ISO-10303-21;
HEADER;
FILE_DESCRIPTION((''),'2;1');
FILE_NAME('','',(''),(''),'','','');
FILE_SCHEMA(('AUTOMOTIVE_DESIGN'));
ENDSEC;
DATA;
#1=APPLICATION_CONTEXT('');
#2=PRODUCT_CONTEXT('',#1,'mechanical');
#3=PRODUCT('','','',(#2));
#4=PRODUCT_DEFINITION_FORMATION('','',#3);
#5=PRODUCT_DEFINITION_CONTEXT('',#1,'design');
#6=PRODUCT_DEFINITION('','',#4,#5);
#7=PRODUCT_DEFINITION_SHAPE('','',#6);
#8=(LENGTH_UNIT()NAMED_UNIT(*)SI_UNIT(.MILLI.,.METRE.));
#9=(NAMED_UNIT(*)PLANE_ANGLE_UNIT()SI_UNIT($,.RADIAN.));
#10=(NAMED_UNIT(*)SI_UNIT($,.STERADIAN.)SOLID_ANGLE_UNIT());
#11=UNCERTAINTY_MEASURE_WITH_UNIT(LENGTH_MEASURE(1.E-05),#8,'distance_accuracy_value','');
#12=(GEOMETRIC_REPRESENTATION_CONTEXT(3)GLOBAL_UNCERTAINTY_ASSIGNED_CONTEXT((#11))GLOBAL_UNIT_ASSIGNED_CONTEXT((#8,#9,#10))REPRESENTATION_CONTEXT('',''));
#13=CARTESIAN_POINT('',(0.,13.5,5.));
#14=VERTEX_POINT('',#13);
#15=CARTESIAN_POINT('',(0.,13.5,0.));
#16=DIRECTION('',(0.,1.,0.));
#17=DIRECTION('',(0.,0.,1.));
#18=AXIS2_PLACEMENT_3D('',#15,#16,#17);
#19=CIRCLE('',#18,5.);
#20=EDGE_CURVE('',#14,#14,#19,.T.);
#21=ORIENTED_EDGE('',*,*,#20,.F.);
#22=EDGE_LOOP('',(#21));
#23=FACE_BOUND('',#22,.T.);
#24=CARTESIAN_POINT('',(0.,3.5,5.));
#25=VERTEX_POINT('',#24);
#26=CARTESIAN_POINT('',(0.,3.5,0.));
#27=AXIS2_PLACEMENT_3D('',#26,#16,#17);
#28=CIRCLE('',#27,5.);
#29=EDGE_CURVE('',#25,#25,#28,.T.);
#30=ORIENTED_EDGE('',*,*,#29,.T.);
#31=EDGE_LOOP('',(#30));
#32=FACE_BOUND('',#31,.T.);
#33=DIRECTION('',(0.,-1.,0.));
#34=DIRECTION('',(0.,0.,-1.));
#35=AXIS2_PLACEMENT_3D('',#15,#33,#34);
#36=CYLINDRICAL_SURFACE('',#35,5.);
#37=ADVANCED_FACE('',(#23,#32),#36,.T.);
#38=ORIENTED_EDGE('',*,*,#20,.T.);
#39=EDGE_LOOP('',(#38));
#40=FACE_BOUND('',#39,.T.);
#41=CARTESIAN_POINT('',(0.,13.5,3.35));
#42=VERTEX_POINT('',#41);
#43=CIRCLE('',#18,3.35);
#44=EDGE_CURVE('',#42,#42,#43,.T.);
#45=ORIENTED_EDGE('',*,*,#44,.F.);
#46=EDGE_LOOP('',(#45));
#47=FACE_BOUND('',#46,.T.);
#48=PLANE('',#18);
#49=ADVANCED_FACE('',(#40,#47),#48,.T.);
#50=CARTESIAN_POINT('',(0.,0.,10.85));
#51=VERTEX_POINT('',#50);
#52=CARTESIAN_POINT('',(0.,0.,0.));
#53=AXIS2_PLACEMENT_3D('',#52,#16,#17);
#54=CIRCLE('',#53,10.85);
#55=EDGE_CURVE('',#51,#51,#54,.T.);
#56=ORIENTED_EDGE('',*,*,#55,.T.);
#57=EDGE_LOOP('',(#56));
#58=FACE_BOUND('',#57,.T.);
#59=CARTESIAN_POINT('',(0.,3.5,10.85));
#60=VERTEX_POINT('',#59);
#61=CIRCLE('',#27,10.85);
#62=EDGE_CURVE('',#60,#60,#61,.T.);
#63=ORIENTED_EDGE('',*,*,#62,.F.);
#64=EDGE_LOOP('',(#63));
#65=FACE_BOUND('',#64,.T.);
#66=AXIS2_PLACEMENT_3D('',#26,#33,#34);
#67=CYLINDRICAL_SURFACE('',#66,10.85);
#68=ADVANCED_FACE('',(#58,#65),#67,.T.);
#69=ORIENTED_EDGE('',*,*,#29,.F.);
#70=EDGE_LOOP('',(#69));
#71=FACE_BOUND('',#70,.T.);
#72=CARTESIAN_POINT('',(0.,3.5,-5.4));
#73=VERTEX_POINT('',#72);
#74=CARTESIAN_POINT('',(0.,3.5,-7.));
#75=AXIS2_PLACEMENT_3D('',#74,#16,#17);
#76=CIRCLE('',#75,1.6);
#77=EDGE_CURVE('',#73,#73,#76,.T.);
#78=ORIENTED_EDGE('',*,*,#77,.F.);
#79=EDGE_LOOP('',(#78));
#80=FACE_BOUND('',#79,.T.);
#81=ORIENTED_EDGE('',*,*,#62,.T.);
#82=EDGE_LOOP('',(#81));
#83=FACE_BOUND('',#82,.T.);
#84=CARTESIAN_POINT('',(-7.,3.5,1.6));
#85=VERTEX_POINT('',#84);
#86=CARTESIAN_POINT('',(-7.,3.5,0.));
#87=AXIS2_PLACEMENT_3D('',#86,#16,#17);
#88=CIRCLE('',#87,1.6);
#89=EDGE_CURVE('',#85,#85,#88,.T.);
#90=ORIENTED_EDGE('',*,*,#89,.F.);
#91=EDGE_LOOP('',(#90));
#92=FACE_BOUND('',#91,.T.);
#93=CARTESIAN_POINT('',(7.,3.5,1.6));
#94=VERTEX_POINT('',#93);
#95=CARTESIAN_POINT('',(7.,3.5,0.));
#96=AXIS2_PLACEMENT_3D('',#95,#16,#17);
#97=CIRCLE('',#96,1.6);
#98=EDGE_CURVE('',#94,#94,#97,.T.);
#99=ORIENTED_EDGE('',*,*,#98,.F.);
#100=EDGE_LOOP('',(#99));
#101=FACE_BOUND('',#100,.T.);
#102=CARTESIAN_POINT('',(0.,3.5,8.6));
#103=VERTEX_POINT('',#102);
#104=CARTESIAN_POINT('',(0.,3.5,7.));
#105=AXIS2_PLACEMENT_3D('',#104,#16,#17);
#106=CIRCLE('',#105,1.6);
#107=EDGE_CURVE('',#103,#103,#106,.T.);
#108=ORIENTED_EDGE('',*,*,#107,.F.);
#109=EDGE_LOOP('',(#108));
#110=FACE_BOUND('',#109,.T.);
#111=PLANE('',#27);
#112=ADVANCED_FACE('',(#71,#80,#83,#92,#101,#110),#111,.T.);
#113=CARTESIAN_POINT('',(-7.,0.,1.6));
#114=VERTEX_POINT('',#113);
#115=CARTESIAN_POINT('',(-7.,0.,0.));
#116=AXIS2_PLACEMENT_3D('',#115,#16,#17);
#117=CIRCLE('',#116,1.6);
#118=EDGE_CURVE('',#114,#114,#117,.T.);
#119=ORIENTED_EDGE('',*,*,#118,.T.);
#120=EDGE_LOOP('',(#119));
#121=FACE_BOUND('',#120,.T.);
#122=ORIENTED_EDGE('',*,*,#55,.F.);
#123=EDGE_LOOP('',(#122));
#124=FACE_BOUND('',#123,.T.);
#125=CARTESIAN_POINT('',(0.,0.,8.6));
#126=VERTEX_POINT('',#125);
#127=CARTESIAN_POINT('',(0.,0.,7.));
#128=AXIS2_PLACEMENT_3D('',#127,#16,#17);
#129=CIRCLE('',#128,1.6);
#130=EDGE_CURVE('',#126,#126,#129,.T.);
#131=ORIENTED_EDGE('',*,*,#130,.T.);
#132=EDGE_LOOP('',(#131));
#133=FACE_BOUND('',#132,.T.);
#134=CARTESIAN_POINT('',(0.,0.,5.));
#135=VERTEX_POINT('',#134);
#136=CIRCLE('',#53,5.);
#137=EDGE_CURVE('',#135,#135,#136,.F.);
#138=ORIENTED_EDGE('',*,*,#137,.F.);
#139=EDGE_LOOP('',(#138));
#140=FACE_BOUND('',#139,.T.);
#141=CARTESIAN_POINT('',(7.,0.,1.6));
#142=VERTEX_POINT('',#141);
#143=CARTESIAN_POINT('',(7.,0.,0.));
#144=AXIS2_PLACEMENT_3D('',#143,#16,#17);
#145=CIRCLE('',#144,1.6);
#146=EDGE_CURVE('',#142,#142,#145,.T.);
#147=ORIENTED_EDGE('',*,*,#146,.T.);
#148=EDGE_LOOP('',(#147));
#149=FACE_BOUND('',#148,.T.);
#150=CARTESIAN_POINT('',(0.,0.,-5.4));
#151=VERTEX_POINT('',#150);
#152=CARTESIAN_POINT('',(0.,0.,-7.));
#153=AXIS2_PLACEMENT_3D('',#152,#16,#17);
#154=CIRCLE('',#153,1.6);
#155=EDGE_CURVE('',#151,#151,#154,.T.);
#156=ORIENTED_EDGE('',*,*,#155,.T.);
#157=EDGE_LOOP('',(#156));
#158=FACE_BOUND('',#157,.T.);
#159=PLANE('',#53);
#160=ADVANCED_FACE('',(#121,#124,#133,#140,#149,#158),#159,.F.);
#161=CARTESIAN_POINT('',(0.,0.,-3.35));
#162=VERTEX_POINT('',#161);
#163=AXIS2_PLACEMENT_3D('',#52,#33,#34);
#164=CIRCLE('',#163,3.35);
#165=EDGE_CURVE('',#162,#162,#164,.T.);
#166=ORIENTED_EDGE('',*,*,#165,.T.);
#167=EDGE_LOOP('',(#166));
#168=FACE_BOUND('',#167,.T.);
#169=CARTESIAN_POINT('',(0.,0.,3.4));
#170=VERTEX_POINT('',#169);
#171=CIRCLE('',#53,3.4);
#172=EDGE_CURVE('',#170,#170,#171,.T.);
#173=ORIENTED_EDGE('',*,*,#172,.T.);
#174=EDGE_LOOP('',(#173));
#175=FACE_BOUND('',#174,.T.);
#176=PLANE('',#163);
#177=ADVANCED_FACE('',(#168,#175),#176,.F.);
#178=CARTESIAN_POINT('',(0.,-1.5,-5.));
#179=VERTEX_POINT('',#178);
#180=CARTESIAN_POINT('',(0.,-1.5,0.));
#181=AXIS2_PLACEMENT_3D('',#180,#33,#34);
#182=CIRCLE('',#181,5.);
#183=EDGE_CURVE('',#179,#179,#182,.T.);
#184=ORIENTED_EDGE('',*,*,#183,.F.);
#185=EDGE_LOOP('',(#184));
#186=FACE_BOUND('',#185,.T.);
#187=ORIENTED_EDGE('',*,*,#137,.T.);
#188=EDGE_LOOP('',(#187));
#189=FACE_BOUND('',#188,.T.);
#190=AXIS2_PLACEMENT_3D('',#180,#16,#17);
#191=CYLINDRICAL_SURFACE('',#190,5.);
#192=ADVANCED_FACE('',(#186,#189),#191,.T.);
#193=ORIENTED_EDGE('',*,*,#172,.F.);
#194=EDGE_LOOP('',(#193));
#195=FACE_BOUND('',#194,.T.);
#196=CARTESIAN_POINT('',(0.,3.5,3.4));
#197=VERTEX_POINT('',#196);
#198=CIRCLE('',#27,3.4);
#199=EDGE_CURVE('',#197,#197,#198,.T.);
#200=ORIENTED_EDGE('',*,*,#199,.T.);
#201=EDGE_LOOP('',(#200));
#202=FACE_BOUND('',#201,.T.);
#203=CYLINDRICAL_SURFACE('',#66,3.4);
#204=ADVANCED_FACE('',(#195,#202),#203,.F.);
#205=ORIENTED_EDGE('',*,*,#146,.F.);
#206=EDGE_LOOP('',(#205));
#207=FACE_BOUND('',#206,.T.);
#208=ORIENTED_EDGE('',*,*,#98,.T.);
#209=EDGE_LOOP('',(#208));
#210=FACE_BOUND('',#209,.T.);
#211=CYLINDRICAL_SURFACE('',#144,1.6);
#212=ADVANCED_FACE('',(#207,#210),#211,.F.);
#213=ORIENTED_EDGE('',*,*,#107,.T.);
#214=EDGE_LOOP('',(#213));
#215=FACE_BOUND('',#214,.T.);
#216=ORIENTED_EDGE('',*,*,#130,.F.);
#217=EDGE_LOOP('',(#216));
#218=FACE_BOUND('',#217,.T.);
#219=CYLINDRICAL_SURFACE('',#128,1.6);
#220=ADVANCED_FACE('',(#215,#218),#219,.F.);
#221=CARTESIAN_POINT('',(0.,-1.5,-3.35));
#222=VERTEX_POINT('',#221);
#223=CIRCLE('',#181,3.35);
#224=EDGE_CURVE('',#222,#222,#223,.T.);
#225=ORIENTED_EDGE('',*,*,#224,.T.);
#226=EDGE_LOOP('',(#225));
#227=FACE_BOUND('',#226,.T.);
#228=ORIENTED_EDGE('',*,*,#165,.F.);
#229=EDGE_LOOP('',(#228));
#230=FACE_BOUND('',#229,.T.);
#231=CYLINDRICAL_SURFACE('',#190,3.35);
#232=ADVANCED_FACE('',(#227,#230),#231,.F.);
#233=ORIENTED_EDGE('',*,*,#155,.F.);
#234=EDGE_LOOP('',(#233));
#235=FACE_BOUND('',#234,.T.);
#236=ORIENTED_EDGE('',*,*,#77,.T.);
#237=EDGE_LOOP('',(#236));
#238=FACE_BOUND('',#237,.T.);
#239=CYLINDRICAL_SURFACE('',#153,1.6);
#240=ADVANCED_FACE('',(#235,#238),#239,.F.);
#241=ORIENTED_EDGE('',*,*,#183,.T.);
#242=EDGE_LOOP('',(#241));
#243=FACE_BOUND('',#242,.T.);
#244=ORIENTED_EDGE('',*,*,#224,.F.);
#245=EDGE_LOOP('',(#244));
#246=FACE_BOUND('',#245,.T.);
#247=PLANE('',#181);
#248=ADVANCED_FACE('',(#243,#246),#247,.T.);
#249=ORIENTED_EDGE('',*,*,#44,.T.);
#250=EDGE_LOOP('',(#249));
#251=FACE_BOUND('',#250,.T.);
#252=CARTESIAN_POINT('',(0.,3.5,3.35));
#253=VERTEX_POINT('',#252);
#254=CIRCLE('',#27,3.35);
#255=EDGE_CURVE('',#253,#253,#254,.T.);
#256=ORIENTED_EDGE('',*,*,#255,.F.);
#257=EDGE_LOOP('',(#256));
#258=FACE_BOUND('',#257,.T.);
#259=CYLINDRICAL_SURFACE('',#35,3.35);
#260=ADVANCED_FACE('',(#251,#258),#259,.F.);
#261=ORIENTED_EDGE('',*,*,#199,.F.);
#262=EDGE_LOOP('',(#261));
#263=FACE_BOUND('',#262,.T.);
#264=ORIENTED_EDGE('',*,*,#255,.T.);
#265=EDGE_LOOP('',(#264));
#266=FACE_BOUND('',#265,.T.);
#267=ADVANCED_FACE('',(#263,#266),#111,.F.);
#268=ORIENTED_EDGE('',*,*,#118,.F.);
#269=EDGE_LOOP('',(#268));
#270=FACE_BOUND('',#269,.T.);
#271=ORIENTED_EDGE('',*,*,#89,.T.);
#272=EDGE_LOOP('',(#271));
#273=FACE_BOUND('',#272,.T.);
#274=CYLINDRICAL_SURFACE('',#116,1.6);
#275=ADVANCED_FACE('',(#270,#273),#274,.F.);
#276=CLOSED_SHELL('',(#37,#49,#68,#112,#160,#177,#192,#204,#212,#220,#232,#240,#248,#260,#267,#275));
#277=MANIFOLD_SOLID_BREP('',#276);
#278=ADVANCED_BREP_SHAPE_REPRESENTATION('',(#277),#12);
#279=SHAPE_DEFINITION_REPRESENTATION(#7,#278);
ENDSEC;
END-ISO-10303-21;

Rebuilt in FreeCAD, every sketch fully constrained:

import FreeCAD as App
import Part
import Sketcher
Q = App.Units.Quantity

doc = App.newDocument("Part")
body = doc.addObject("PartDesign::Body", "Body")

sketch1 = body.newObject("Sketcher::SketchObject", "Sketch")
sketch1.AttachmentSupport = (doc.getObject("XZ_Plane"), [""])
sketch1.MapMode = "FlatFace"
sketch1.addGeometry(Part.Circle(App.Vector(0, 0, 0), App.Vector(0, 0, 1), 10.85), False)
sketch1.addGeometry(Part.Circle(App.Vector(0, 0, 0), App.Vector(0, 0, 1), 3.4), False)
sketch1.addConstraint(Sketcher.Constraint("Coincident", 0, 3, -1, 1))
sketch1.addConstraint(Sketcher.Constraint("Coincident", 1, 3, -1, 1))
sketch1.addConstraint(Sketcher.Constraint("Diameter", 0, Q("21.7 mm")))
sketch1.addConstraint(Sketcher.Constraint("Diameter", 1, Q("6.8 mm")))
pad1 = body.newObject("PartDesign::Pad", "Pad")
pad1.Profile = sketch1
pad1.Length = 3.5
pad1.Reversed = True

sketch2 = body.newObject("Sketcher::SketchObject", "Sketch001")
sketch2.AttachmentSupport = (doc.getObject("XZ_Plane"), [""])
sketch2.MapMode = "FlatFace"
sketch2.AttachmentOffset = App.Placement(App.Vector(0, 0, -3.5), App.Rotation())
sketch2.addGeometry(Part.Circle(App.Vector(0, 0, 0), App.Vector(0, 0, 1), 5), False)
sketch2.addGeometry(Part.Circle(App.Vector(0, 0, 0), App.Vector(0, 0, 1), 3.35), False)
sketch2.addConstraint(Sketcher.Constraint("Coincident", 0, 3, -1, 1))
sketch2.addConstraint(Sketcher.Constraint("Coincident", 1, 3, -1, 1))
sketch2.addConstraint(Sketcher.Constraint("Diameter", 0, Q("10 mm")))
sketch2.addConstraint(Sketcher.Constraint("Diameter", 1, Q("6.7 mm")))
pad2 = body.newObject("PartDesign::Pad", "Pad001")
pad2.Profile = sketch2
pad2.Length = 10
pad2.Reversed = True

sketch3 = body.newObject("Sketcher::SketchObject", "Sketch002")
sketch3.AttachmentSupport = (doc.getObject("XZ_Plane"), [""])
sketch3.MapMode = "FlatFace"
sketch3.AttachmentOffset = App.Placement(App.Vector(0, 0, -3.5), App.Rotation())
sketch3.addGeometry(Part.Circle(App.Vector(0, -7, 0), App.Vector(0, 0, 1), 1.6), False)
sketch3.addGeometry(Part.Circle(App.Vector(-7, 0, 0), App.Vector(0, 0, 1), 1.6), False)
sketch3.addGeometry(Part.Circle(App.Vector(0, 7, 0), App.Vector(0, 0, 1), 1.6), False)
sketch3.addGeometry(Part.Circle(App.Vector(7, 0, 0), App.Vector(0, 0, 1), 1.6), False)
sketch3.addConstraint(Sketcher.Constraint("Equal", 0, 1))
sketch3.addConstraint(Sketcher.Constraint("Equal", 1, 2))
sketch3.addConstraint(Sketcher.Constraint("Equal", 2, 3))
sketch3.addConstraint(Sketcher.Constraint("Symmetric", 0, 3, 2, 3, -1, 1))
sketch3.addConstraint(Sketcher.Constraint("Symmetric", 1, 3, 3, 3, -1, 1))
sketch3.addConstraint(Sketcher.Constraint("PointOnObject", 0, 3, -2))
sketch3.addConstraint(Sketcher.Constraint("PointOnObject", 1, 3, -1))
sketch3.addConstraint(Sketcher.Constraint("Diameter", 0, Q("3.2 mm")))
sketch3.addConstraint(Sketcher.Constraint("DistanceY", 0, 3, -1, 1, Q("7 mm")))
sketch3.addConstraint(Sketcher.Constraint("DistanceX", 1, 3, -1, 1, Q("7 mm")))
pocket1 = body.newObject("PartDesign::Pocket", "Pocket")
pocket1.Profile = sketch3
pocket1.Type = "ThroughAll"
pocket1.Reversed = True

sketch4 = body.newObject("Sketcher::SketchObject", "Sketch003")
sketch4.AttachmentSupport = (doc.getObject("XZ_Plane"), [""])
sketch4.MapMode = "FlatFace"
sketch4.AttachmentOffset = App.Placement(App.Vector(0, 0, 1.5), App.Rotation())
sketch4.addGeometry(Part.Circle(App.Vector(0, 0, 0), App.Vector(0, 0, 1), 5), False)
sketch4.addGeometry(Part.Circle(App.Vector(0, 0, 0), App.Vector(0, 0, 1), 3.35), False)
sketch4.addConstraint(Sketcher.Constraint("Coincident", 0, 3, -1, 1))
sketch4.addConstraint(Sketcher.Constraint("Coincident", 1, 3, -1, 1))
sketch4.addConstraint(Sketcher.Constraint("Diameter", 0, Q("10 mm")))
sketch4.addConstraint(Sketcher.Constraint("Diameter", 1, Q("6.7 mm")))
pad3 = body.newObject("PartDesign::Pad", "Pad002")
pad3.Profile = sketch4
pad3.Length = 1.5
pad3.Reversed = True

doc.recompute()
